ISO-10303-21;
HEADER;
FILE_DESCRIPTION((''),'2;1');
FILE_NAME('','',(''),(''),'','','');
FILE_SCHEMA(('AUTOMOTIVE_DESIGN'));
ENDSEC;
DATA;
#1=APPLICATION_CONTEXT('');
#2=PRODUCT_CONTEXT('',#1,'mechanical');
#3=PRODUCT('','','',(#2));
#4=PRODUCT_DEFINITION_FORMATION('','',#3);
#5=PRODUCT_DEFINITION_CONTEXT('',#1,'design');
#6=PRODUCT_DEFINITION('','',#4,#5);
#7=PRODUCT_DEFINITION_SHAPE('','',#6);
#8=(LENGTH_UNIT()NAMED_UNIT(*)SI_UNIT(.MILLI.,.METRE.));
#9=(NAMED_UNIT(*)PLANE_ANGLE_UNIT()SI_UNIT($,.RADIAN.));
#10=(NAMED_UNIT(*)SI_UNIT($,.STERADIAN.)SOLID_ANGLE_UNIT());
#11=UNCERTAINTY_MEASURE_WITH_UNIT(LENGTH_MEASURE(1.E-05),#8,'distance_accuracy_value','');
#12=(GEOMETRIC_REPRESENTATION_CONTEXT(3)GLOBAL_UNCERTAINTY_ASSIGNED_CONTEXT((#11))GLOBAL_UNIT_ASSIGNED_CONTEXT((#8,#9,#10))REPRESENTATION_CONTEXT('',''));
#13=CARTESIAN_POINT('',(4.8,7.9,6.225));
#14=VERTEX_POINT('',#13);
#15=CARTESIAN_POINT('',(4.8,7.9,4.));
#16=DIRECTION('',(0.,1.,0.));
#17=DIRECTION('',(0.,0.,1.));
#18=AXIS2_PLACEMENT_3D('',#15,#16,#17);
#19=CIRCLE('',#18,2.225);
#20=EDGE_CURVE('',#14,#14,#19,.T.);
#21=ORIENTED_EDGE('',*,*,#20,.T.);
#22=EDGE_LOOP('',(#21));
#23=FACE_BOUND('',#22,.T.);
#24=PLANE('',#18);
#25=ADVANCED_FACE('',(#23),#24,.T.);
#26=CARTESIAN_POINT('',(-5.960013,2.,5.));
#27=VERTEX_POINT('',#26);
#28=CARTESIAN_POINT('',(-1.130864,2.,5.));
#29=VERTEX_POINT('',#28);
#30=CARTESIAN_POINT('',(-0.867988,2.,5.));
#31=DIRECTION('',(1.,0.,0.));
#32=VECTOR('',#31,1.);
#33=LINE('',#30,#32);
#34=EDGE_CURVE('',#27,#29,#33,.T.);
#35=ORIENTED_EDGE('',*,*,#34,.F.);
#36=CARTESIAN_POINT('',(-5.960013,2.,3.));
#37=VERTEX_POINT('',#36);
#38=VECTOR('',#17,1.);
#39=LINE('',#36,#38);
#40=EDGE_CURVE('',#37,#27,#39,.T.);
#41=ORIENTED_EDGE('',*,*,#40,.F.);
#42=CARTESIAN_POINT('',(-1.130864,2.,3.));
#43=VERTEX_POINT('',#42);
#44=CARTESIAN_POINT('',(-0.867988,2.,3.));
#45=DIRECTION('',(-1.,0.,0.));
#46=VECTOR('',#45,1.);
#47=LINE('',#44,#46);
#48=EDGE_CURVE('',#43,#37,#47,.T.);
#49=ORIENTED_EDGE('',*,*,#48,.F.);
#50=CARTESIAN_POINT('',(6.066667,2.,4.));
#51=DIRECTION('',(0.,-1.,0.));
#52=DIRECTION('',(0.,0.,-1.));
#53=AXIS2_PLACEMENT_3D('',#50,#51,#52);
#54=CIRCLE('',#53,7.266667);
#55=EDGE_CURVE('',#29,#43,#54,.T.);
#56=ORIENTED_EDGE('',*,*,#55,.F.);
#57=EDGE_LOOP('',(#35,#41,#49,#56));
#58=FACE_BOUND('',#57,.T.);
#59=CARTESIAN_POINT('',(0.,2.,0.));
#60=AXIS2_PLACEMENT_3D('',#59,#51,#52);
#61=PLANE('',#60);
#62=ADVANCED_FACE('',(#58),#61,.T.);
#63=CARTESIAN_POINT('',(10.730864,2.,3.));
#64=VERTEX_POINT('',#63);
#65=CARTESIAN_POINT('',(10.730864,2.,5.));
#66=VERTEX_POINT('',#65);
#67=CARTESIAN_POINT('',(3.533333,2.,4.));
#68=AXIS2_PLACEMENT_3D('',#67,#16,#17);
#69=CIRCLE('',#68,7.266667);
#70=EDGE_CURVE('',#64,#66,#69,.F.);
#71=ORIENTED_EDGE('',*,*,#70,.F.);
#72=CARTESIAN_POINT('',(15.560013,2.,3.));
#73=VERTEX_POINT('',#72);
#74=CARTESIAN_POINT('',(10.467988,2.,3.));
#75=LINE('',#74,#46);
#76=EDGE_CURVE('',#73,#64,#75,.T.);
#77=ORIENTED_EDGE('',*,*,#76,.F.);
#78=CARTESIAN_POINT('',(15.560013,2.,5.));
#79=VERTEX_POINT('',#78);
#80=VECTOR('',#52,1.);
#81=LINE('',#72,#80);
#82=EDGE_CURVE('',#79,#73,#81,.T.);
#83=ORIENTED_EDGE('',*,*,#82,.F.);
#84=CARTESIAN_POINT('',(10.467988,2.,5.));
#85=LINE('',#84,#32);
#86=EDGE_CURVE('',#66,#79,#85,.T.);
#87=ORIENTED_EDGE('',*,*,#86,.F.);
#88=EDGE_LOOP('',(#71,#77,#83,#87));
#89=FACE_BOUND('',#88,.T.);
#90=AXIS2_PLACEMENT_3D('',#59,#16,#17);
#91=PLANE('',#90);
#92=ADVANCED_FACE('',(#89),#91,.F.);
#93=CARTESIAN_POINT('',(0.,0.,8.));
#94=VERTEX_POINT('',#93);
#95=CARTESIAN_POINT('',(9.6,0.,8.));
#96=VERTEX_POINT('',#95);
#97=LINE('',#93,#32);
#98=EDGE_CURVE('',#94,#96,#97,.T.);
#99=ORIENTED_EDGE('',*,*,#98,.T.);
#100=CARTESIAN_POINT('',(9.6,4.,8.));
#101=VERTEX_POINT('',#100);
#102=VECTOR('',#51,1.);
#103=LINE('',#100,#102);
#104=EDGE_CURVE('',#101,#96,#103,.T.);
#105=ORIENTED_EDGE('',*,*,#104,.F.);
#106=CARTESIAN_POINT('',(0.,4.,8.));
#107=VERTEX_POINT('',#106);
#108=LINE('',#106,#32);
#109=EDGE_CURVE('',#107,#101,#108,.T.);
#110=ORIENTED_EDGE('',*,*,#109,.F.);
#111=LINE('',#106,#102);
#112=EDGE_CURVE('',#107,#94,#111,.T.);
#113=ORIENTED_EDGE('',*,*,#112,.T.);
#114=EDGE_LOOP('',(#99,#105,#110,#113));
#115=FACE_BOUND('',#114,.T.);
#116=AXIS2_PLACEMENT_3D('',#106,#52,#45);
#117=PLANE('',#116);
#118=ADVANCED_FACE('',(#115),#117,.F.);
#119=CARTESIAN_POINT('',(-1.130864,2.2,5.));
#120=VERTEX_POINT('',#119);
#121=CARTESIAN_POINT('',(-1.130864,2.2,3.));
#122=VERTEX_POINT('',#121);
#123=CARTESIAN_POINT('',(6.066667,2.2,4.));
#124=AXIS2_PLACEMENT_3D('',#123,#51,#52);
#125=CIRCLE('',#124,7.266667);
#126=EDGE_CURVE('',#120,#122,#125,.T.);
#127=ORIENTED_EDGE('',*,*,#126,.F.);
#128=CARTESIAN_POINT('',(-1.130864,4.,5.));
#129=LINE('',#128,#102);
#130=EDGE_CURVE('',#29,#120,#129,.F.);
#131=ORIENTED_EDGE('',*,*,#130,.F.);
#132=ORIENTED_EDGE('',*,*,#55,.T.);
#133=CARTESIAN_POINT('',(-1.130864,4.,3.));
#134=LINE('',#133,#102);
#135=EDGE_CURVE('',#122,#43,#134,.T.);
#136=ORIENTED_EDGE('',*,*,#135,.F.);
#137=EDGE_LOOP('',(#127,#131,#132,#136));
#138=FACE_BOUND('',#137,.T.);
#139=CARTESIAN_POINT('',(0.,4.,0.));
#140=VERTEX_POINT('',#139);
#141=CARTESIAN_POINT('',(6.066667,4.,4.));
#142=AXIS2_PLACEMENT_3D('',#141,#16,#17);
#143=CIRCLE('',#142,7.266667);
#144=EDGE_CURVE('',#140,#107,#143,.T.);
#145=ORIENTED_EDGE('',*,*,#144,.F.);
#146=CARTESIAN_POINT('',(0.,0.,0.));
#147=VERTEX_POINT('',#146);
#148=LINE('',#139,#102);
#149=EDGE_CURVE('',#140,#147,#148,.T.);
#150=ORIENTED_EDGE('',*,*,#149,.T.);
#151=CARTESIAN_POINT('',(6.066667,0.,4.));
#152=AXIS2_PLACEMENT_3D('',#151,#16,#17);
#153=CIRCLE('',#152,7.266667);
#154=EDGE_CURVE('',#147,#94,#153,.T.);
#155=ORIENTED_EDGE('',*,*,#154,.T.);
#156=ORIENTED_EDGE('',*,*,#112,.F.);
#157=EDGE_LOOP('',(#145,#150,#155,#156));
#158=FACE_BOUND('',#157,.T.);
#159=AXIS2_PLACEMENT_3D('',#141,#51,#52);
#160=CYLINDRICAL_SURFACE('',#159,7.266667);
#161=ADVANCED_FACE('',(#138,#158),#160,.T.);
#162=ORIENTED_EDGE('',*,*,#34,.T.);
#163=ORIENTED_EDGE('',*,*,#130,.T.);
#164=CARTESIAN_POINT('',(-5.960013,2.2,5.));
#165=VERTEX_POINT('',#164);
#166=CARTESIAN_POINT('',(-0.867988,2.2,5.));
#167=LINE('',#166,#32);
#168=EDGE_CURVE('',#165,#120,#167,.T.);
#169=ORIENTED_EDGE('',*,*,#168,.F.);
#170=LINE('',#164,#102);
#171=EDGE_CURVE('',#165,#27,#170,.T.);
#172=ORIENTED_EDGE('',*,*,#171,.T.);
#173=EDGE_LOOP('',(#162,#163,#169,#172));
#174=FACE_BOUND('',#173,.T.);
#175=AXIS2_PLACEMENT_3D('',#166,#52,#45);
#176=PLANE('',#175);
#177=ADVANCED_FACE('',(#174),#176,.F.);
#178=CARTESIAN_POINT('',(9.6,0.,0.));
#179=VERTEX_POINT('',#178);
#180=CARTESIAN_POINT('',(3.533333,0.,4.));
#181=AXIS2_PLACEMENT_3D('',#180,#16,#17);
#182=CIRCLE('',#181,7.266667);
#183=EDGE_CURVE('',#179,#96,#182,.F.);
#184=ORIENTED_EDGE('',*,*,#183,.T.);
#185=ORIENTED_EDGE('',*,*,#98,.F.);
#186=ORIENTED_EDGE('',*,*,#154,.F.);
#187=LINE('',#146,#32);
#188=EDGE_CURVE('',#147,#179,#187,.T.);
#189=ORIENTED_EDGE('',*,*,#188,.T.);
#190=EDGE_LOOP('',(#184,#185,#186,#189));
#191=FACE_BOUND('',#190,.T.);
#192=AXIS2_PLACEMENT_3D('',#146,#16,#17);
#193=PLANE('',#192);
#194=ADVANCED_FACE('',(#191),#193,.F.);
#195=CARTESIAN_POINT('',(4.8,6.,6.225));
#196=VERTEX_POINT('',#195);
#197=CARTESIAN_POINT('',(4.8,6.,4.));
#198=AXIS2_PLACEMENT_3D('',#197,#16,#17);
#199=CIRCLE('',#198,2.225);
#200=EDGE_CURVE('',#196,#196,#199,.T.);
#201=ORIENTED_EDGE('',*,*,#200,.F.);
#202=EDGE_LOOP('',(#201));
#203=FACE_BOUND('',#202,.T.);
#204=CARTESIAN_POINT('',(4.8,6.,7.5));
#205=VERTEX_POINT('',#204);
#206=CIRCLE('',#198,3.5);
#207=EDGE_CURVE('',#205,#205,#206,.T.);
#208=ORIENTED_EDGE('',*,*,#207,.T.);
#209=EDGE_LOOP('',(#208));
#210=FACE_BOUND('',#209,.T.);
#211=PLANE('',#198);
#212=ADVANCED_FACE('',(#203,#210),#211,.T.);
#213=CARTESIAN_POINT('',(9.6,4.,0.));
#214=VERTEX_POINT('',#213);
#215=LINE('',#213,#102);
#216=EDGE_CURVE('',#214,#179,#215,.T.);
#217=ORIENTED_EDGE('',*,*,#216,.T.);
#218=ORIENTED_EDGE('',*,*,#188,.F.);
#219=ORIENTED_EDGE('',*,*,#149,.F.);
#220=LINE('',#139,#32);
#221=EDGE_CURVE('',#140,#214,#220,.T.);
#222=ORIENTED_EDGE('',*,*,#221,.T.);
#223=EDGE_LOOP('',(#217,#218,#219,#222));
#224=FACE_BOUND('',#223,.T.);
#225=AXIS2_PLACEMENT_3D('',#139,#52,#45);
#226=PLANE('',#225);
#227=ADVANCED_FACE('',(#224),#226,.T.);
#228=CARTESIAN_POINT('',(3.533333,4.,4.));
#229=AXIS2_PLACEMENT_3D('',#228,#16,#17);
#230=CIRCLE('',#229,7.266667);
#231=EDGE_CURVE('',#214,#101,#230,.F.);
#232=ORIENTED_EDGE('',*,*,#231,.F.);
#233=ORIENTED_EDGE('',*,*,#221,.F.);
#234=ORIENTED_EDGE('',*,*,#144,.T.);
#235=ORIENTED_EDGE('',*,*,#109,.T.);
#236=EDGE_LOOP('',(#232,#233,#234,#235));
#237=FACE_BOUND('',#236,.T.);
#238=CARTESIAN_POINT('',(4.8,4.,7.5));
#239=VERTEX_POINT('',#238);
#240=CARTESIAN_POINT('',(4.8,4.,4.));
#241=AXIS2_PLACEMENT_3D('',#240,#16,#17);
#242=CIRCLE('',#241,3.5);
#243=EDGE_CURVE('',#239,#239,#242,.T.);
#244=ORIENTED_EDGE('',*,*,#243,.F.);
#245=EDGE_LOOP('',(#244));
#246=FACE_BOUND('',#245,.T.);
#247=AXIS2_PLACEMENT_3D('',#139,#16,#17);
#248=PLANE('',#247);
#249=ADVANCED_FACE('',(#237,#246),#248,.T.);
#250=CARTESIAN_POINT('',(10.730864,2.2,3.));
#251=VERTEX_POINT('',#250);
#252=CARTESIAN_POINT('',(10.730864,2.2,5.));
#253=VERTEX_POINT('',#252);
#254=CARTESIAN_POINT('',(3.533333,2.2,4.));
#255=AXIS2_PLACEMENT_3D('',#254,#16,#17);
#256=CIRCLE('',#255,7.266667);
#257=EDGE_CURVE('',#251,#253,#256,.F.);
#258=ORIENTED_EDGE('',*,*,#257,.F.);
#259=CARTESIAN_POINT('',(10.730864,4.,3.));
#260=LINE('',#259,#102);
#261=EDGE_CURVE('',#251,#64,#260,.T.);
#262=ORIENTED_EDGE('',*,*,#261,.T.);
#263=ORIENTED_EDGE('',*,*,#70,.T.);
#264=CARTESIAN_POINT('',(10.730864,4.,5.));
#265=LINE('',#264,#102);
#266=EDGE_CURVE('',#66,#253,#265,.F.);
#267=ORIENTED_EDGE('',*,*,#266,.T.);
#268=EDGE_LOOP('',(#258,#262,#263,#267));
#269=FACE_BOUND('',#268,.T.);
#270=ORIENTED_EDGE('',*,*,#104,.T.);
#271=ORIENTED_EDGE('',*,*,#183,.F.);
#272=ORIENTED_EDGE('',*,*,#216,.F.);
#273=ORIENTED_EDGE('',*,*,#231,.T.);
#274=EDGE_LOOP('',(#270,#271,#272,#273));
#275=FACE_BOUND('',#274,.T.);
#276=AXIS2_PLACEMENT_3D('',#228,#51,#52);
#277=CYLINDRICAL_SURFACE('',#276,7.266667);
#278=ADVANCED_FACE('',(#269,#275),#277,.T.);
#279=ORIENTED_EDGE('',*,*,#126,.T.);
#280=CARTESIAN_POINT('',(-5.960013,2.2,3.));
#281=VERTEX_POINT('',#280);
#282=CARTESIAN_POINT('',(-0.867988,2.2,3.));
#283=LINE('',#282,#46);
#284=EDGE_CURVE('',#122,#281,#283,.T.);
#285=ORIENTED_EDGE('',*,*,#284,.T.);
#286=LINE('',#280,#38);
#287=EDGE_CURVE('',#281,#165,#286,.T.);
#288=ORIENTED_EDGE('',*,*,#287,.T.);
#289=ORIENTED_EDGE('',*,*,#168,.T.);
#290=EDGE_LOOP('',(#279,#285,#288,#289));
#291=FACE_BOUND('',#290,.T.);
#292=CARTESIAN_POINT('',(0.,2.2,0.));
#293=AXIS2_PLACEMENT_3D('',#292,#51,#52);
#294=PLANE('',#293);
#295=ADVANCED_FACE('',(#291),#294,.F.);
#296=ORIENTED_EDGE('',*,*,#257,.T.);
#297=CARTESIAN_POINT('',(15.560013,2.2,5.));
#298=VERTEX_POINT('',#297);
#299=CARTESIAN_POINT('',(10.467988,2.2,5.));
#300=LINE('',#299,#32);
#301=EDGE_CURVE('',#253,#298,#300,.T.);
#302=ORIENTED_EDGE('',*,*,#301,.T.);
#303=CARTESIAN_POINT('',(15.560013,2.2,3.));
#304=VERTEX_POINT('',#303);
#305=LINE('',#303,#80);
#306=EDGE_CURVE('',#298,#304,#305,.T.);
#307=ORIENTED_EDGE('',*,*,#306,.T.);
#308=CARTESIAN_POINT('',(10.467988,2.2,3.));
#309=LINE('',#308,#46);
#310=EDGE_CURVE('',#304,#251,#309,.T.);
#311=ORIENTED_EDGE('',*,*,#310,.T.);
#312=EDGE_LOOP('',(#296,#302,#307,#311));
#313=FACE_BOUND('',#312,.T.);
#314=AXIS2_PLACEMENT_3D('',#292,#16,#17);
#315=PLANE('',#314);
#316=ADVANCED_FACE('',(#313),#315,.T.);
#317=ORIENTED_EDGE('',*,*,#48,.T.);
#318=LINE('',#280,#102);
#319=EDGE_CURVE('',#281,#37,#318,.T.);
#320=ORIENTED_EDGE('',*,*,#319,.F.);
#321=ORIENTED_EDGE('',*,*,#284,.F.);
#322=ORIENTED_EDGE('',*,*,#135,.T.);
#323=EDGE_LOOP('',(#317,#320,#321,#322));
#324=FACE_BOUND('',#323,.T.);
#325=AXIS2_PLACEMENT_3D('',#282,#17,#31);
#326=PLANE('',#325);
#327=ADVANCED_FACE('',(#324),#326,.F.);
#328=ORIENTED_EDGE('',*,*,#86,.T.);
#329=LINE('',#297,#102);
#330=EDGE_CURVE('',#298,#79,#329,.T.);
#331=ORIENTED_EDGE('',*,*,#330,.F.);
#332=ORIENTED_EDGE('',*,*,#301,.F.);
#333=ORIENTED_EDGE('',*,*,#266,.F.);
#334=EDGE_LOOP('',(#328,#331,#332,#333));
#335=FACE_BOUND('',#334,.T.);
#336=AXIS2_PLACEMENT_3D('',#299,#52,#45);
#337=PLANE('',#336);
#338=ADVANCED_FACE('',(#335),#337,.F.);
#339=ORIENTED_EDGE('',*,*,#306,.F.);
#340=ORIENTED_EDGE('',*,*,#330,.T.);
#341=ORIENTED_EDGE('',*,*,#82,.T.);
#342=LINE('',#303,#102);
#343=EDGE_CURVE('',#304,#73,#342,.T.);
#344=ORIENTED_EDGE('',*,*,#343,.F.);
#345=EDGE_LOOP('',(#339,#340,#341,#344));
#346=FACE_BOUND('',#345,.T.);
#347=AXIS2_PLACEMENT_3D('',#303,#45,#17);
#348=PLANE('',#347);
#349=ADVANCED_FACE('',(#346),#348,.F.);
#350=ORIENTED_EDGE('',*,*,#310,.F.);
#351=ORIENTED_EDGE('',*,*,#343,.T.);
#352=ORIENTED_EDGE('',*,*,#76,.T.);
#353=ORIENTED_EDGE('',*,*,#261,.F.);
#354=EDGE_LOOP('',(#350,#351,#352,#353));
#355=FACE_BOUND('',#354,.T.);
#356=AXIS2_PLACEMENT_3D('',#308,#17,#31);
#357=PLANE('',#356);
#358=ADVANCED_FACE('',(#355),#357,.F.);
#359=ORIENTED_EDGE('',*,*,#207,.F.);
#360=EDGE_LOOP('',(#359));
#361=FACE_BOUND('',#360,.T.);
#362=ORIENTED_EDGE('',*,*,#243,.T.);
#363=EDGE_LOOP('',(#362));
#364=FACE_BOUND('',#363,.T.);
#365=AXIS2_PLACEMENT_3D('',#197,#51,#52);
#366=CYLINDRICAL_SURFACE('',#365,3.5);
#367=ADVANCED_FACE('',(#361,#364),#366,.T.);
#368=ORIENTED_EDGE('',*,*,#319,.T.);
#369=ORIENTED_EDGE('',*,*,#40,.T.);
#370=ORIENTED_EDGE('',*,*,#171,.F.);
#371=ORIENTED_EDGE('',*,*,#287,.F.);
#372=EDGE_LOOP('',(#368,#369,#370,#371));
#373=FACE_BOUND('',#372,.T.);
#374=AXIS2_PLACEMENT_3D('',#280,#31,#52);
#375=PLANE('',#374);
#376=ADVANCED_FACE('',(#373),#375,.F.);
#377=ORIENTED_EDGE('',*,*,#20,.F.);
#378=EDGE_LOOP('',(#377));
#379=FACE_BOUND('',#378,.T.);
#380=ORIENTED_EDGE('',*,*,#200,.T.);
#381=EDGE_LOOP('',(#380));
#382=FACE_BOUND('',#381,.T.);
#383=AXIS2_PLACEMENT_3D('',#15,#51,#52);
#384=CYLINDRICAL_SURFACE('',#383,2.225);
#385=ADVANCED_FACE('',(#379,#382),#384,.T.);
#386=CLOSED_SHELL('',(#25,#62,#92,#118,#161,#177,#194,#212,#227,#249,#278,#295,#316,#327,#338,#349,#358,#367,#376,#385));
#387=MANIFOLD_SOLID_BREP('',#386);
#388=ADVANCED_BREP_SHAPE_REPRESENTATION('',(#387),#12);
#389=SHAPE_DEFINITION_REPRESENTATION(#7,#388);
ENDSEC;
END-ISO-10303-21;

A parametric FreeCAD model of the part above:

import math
import FreeCAD as App
import Part
import Sketcher
from FreeCAD import Vector
Q = App.Units.Quantity

doc = App.newDocument("Part")
params = doc.addObject("Spreadsheet::Sheet", "Params")
for row, (alias, value) in enumerate([
    ("sketch1_width", "9.6 mm"),
    ("pad1_length", "4 mm"),
    ("sketch2_diameter", "7 mm"),
    ("pad2_length", "2 mm"),
    ("sketch3_diameter", "4.45 mm"),
    ("pad3_length", "1.9 mm"),
    ("sketch4_height", "2 mm"),
    ("pad4_length", "0.2 mm"),
], start=1):
    params.set(f"A{row}", alias)
    params.set(f"B{row}", "=" + value)
    params.setAlias(f"B{row}", alias)

body = doc.addObject("PartDesign::Body", "Body")

# Sketch on XZ plane
sketch1 = body.newObject("Sketcher::SketchObject", "Sketch")
sketch1.AttachmentSupport = (doc.getObject("XZ_Plane"), [""])
sketch1.MapMode = "FlatFace"
sketch1.addGeometry(Part.LineSegment(Vector(0, 8, 0), Vector(9.6, 8, 0)), False)
sketch1.addGeometry(Part.ArcOfCircle(Part.Circle(Vector(3.533333, 4, 0), Vector(0, 0, 1), 7.266667), math.radians(-33.398488), math.radians(33.398488)), False)
sketch1.addGeometry(Part.LineSegment(Vector(9.6, 0, 0), Vector(0, 0, 0)), False)
sketch1.addGeometry(Part.ArcOfCircle(Part.Circle(Vector(6.066667, 4, 0), Vector(0, 0, 1), 7.266667), math.radians(146.601512), math.radians(213.398488)), False)
sketch1.addConstraint(Sketcher.Constraint("Coincident", 0, 2, 1, 2))
sketch1.addConstraint(Sketcher.Constraint("Coincident", 1, 1, 2, 1))
sketch1.addConstraint(Sketcher.Constraint("Coincident", 2, 2, 3, 2))
sketch1.addConstraint(Sketcher.Constraint("Coincident", 3, 1, 0, 1))
sketch1.addConstraint(Sketcher.Constraint("Horizontal", 0))
sketch1.addConstraint(Sketcher.Constraint("Horizontal", 2))
sketch1.addConstraint(Sketcher.Constraint("Coincident", 2, 2, -1, 1))
sketch1.addConstraint(Sketcher.Constraint("Equal", 1, 3))
sketch1.addConstraint(Sketcher.Constraint("PointOnObject", 3, 1, -2))
sketch1.addConstraint(Sketcher.Constraint("Horizontal", 1, 3, 3, 3))
sketch1.addConstraint(Sketcher.Constraint("DistanceX", 0, 1, 0, 2, Q("9.6 mm")))
sketch1.addConstraint(Sketcher.Constraint("DistanceY", -1, 1, 1, 3, Q("4 mm")))
sketch1.addConstraint(Sketcher.Constraint("Radius", 1, Q("7.266667 mm")))
sketch1.setExpression("Constraints[10]", "Params.sketch1_width")
pad1 = body.newObject("PartDesign::Pad", "Pad")
pad1.Profile = sketch1
pad1.setExpression("Length", "Params.pad1_length")
pad1.Reversed = True

# Sketch on XZ plane
sketch2 = body.newObject("Sketcher::SketchObject", "Sketch001")
sketch2.AttachmentSupport = (doc.getObject("XZ_Plane"), [""])
sketch2.MapMode = "FlatFace"
sketch2.AttachmentOffset = App.Placement(Vector(0, 0, -4), App.Rotation())
sketch2.addGeometry(Part.Circle(Vector(4.8, 4, 0), Vector(0, 0, 1), 3.5), False)
sketch2.addConstraint(Sketcher.Constraint("Diameter", 0, Q("7 mm")))
sketch2.addConstraint(Sketcher.Constraint("DistanceY", -1, 1, 0, 3, Q("4 mm")))
sketch2.addConstraint(Sketcher.Constraint("DistanceX", -1, 1, 0, 3, Q("4.8 mm")))
sketch2.setExpression("Constraints[0]", "Params.sketch2_diameter")
pad2 = body.newObject("PartDesign::Pad", "Pad001")
pad2.Profile = sketch2
pad2.setExpression("Length", "Params.pad2_length")
pad2.Reversed = True

# Sketch on XZ plane
sketch3 = body.newObject("Sketcher::SketchObject", "Sketch002")
sketch3.AttachmentSupport = (doc.getObject("XZ_Plane"), [""])
sketch3.MapMode = "FlatFace"
sketch3.AttachmentOffset = App.Placement(Vector(0, 0, -6), App.Rotation())
sketch3.addGeometry(Part.Circle(Vector(4.8, 4, 0), Vector(0, 0, 1), 2.225), False)
sketch3.addConstraint(Sketcher.Constraint("Diameter", 0, Q("4.45 mm")))
sketch3.addConstraint(Sketcher.Constraint("DistanceY", -1, 1, 0, 3, Q("4 mm")))
sketch3.addConstraint(Sketcher.Constraint("DistanceX", -1, 1, 0, 3, Q("4.8 mm")))
sketch3.setExpression("Constraints[0]", "Params.sketch3_diameter")
pad3 = body.newObject("PartDesign::Pad", "Pad002")
pad3.Profile = sketch3
pad3.setExpression("Length", "Params.pad3_length")
pad3.Reversed = True

# Sketch on XZ plane
sketch4 = body.newObject("Sketcher::SketchObject", "Sketch003")
sketch4.AttachmentSupport = (doc.getObject("XZ_Plane"), [""])
sketch4.MapMode = "FlatFace"
sketch4.AttachmentOffset = App.Placement(Vector(0, 0, -2), App.Rotation())
sketch4.addGeometry(Part.LineSegment(Vector(-5.960013, 3, 0), Vector(-5.960013, 5, 0)), False)
sketch4.addGeometry(Part.LineSegment(Vector(-5.960013, 5, 0), Vector(-0.867988, 5, 0)), False)
sketch4.addGeometry(Part.LineSegment(Vector(-0.867988, 5, 0), Vector(-0.867988, 3, 0)), False)
sketch4.addGeometry(Part.LineSegment(Vector(-0.867988, 3, 0), Vector(-5.960013, 3, 0)), False)
sketch4.addGeometry(Part.LineSegment(Vector(10.467988, 3, 0), Vector(10.467988, 5, 0)), False)
sketch4.addGeometry(Part.LineSegment(Vector(10.467988, 5, 0), Vector(15.560013, 5, 0)), False)
sketch4.addGeometry(Part.LineSegment(Vector(15.560013, 5, 0), Vector(15.560013, 3, 0)), False)
sketch4.addGeometry(Part.LineSegment(Vector(15.560013, 3, 0), Vector(10.467988, 3, 0)), False)
sketch4.addConstraint(Sketcher.Constraint("Coincident", 0, 2, 1, 1))
sketch4.addConstraint(Sketcher.Constraint("Coincident", 1, 2, 2, 1))
sketch4.addConstraint(Sketcher.Constraint("Coincident", 2, 2, 3, 1))
sketch4.addConstraint(Sketcher.Constraint("Coincident", 3, 2, 0, 1))
sketch4.addConstraint(Sketcher.Constraint("Coincident", 4, 2, 5, 1))
sketch4.addConstraint(Sketcher.Constraint("Coincident", 5, 2, 6, 1))
sketch4.addConstraint(Sketcher.Constraint("Coincident", 6, 2, 7, 1))
sketch4.addConstraint(Sketcher.Constraint("Coincident", 7, 2, 4, 1))
sketch4.addConstraint(Sketcher.Constraint("Vertical", 0))
sketch4.addConstraint(Sketcher.Constraint("Horizontal", 1))
sketch4.addConstraint(Sketcher.Constraint("Vertical", 2))
sketch4.addConstraint(Sketcher.Constraint("Horizontal", 3))
sketch4.addConstraint(Sketcher.Constraint("Vertical", 4))
sketch4.addConstraint(Sketcher.Constraint("Horizontal", 5))
sketch4.addConstraint(Sketcher.Constraint("Vertical", 6))
sketch4.addConstraint(Sketcher.Constraint("Horizontal", 7))
sketch4.addConstraint(Sketcher.Constraint("Horizontal", 1, 2, 4, 2))
sketch4.addConstraint(Sketcher.Constraint("Horizontal", 3, 2, 6, 2))
sketch4.addConstraint(Sketcher.Constraint("Equal", 3, 5))
sketch4.addConstraint(Sketcher.Constraint("DistanceY", 0, 1, 0, 2, Q("2 mm")))
sketch4.addConstraint(Sketcher.Constraint("DistanceY", -1, 1, 0, 2, Q("5 mm")))
sketch4.addConstraint(Sketcher.Constraint("DistanceX", 0, 2, 4, 2, Q("16.428001 mm")))
sketch4.addConstraint(Sketcher.Constraint("DistanceX", 1, 1, 1, 2, Q("5.092026 mm")))
sketch4.addConstraint(Sketcher.Constraint("DistanceX", 0, 2, -1, 1, Q("5.960013 mm")))
sketch4.setExpression("Constraints[19]", "Params.sketch4_height")
pad4 = body.newObject("PartDesign::Pad", "Pad003")
pad4.Profile = sketch4
pad4.setExpression("Length", "Params.pad4_length")
pad4.Reversed = True

doc.recompute()
